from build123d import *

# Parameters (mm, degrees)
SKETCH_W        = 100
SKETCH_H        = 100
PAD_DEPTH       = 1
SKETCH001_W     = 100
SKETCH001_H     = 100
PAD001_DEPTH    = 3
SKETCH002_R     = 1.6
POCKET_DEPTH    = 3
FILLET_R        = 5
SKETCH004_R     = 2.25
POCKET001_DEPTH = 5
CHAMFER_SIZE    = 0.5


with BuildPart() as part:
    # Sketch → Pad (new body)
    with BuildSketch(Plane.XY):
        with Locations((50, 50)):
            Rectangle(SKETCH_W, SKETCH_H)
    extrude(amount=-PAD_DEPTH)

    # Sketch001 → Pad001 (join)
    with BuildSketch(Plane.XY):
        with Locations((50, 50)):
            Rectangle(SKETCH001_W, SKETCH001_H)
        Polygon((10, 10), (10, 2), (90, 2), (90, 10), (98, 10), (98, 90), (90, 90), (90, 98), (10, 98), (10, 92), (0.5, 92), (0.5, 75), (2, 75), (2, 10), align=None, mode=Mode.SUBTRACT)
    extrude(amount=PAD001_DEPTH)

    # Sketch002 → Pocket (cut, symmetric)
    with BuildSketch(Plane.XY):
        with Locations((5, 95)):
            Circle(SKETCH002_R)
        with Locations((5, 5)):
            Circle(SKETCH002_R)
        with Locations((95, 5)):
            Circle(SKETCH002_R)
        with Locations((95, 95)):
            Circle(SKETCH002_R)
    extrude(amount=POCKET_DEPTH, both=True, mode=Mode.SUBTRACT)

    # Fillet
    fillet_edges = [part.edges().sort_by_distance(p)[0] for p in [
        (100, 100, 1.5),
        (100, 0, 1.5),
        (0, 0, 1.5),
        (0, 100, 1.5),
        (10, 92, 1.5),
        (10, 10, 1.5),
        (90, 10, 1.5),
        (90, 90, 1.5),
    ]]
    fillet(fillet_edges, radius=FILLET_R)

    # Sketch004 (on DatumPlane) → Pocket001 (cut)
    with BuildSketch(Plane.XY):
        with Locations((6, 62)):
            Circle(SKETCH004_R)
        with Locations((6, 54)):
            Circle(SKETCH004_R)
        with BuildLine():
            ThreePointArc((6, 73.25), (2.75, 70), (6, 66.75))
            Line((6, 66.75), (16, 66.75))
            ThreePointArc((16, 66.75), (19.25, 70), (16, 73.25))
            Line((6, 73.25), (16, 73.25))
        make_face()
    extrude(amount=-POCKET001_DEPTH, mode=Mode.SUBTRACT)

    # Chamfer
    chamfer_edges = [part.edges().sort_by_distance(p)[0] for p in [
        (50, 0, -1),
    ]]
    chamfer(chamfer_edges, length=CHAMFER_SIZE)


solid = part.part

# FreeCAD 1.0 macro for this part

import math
import FreeCAD as App
import Part
import Sketcher
from FreeCAD import Vector


def edges_at(feature, points):
    """Names of the edges that pass closest to the given points."""
    edges = feature.Shape.Edges
    near = lambda p: min(range(len(edges)), key=lambda i: edges[i].distToShape(Part.Vertex(*p))[0])
    return sorted({f"Edge{near(p) + 1}" for p in points})


def add_polygon(sketch, points):
    """Adds a closed chain of lines whose ends are joined by coincident constraints."""
    first, n = sketch.GeometryCount, len(points)
    for a, b in zip(points, points[1:] + points[:1]):
        sketch.addGeometry(Part.LineSegment(App.Vector(*a, 0), App.Vector(*b, 0)), False)
    for i in range(n):
        sketch.addConstraint(Sketcher.Constraint("Coincident", first + i, 2, first + (i + 1) % n, 1))

doc = App.newDocument("Part")
body = doc.addObject("PartDesign::Body", "Body")

# Sketch on XY plane
sketch1 = body.newObject("Sketcher::SketchObject", "Sketch")
sketch1.AttachmentSupport = (doc.getObject("XY_Plane"), [""])
sketch1.MapMode = "FlatFace"
add_polygon(sketch1, [(0, 100), (0, 0), (100, 0), (100, 100)])  # lines 0-3
sketch1.addConstraint([
    Sketcher.Constraint("Vertical", 0),
    Sketcher.Constraint("Horizontal", 1),
    Sketcher.Constraint("Vertical", 2),
    Sketcher.Constraint("Horizontal", 3),
    Sketcher.Constraint("Coincident", 0, 2, -1, 1),
    Sketcher.Constraint("Equal", 3, 0),
    Sketcher.Constraint("DistanceX", 1, 1, 1, 2, 100.0),
])
pad1 = body.newObject("PartDesign::Pad", "Pad")
pad1.Profile = sketch1
pad1.Length = 1
pad1.Reversed = True

# Sketch on XY plane
sketch2 = body.newObject("Sketcher::SketchObject", "Sketch001")
sketch2.AttachmentSupport = (doc.getObject("XY_Plane"), [""])
sketch2.MapMode = "FlatFace"
add_polygon(sketch2, [(0, 100), (0, 0), (100, 0), (100, 100)])  # lines 0-3
add_polygon(sketch2, [(10, 2), (10, 10), (2, 10), (2, 75), (0.5, 75), (0.5, 92), (10, 92), (10, 98), (90, 98), (90, 90), (98, 90), (98, 10), (90, 10), (90, 2)])  # lines 4-17
sketch2.addConstraint([
    Sketcher.Constraint("Vertical", 0),
    Sketcher.Constraint("Horizontal", 1),
    Sketcher.Constraint("Vertical", 2),
    Sketcher.Constraint("Horizontal", 3),
    Sketcher.Constraint("Vertical", 4),
    Sketcher.Constraint("Horizontal", 5),
    Sketcher.Constraint("Vertical", 6),
    Sketcher.Constraint("Horizontal", 7),
    Sketcher.Constraint("Vertical", 8),
    Sketcher.Constraint("Horizontal", 9),
    Sketcher.Constraint("Vertical", 10),
    Sketcher.Constraint("Horizontal", 11),
    Sketcher.Constraint("Vertical", 12),
    Sketcher.Constraint("Horizontal", 13),
    Sketcher.Constraint("Vertical", 14),
    Sketcher.Constraint("Horizontal", 15),
    Sketcher.Constraint("Vertical", 16),
    Sketcher.Constraint("Horizontal", 17),
    Sketcher.Constraint("Coincident", 0, 2, -1, 1),
    Sketcher.Constraint("Horizontal", 5, 2, 14, 2),
    Sketcher.Constraint("Vertical", 4, 2, 9, 2),
    Sketcher.Constraint("Vertical", 12, 2, 15, 2),
    Sketcher.Constraint("Equal", 5, 13),
    Sketcher.Constraint("Equal", 3, 0),
    Sketcher.Constraint("Equal", 15, 4),
    Sketcher.Constraint("Equal", 4, 12),
    Sketcher.Constraint("Equal", 17, 14),
    Sketcher.Constraint("DistanceX", 1, 1, 1, 2, 100.0),
    Sketcher.Constraint("DistanceX", 5, 2, 5, 1, 8.0),
    Sketcher.Constraint("DistanceX", 11, 1, 11, 2, 80.0),
    Sketcher.Constraint("DistanceY", 6, 1, 6, 2, 65.0),
    Sketcher.Constraint("DistanceY", 8, 1, 8, 2, 17.0),
    Sketcher.Constraint("DistanceX", 7, 2, 7, 1, 1.5),
    Sketcher.Constraint("DistanceX", -1, 1, 4, 2, 10.0),
    Sketcher.Constraint("DistanceY", -1, 1, 4, 2, 10.0),
])
pad2 = body.newObject("PartDesign::Pad", "Pad001")
pad2.Profile = sketch2
pad2.Length = 3

# Sketch on XY plane
sketch3 = body.newObject("Sketcher::SketchObject", "Sketch002")
sketch3.AttachmentSupport = (doc.getObject("XY_Plane"), [""])
sketch3.MapMode = "FlatFace"
sketch3.addGeometry([
    Part.Circle(Vector(5, 95, 0), Vector(0, 0, 1), 1.6),
    Part.Circle(Vector(5, 5, 0), Vector(0, 0, 1), 1.6),
    Part.Circle(Vector(95, 5, 0), Vector(0, 0, 1), 1.6),
    Part.Circle(Vector(95, 95, 0), Vector(0, 0, 1), 1.6),
], False)
sketch3.addConstraint([
    Sketcher.Constraint("Equal", 0, 1),
    Sketcher.Constraint("Equal", 1, 2),
    Sketcher.Constraint("Equal", 2, 3),
    Sketcher.Constraint("Horizontal", 1, 3, 2, 3),
    Sketcher.Constraint("Horizontal", 0, 3, 3, 3),
    Sketcher.Constraint("Vertical", 0, 3, 1, 3),
    Sketcher.Constraint("Vertical", 2, 3, 3, 3),
    Sketcher.Constraint("Diameter", 0, 3.2),
    Sketcher.Constraint("DistanceX", -1, 1, 0, 3, 5.0),
    Sketcher.Constraint("DistanceY", -1, 1, 0, 3, 95.0),
    Sketcher.Constraint("DistanceY", -1, 1, 1, 3, 5.0),
    Sketcher.Constraint("DistanceX", -1, 1, 2, 3, 95.0),
])
pocket1 = body.newObject("PartDesign::Pocket", "Pocket")
pocket1.Profile = sketch3
pocket1.Length = 6
pocket1.Midplane = True
doc.recompute()

fillet = body.newObject("PartDesign::Fillet", "Fillet")
fillet.Base = (pocket1, edges_at(pocket1, [
    (100, 100, 1),
    (100, 0, 1),
    (0, 0, 1),
    (0, 100, 1),
    (10, 92, 1.5),
    (10, 10, 1.5),
    (90, 10, 1.5),
    (90, 90, 1.5),
]))
fillet.Radius = 5

# Sketch on XY plane
sketch4 = body.newObject("Sketcher::SketchObject", "Sketch003")
sketch4.AttachmentSupport = (doc.getObject("XY_Plane"), [""])
sketch4.MapMode = "FlatFace"
sketch4.addGeometry([
    Part.Circle(Vector(6, 62, 0), Vector(0, 0, 1), 2.25),  # 0
    Part.Circle(Vector(6, 54, 0), Vector(0, 0, 1), 2.25),  # 1
    Part.ArcOfCircle(Part.Circle(Vector(6, 70, 0), Vector(0, 0, 1), 3.25), math.radians(90), math.radians(270)),  # 2
    Part.LineSegment(Vector(6, 66.75, 0), Vector(16, 66.75, 0)),  # 3
    Part.ArcOfCircle(Part.Circle(Vector(16, 70, 0), Vector(0, 0, 1), 3.25), math.radians(-90), math.radians(90)),  # 4
    Part.LineSegment(Vector(16, 73.25, 0), Vector(6, 73.25, 0)),  # 5
], False)
sketch4.addConstraint([
    Sketcher.Constraint("Tangent", 2, 2, 3, 1),
    Sketcher.Constraint("Tangent", 3, 2, 4, 1),
    Sketcher.Constraint("Tangent", 4, 2, 5, 1),
    Sketcher.Constraint("Tangent", 5, 2, 2, 1),
    Sketcher.Constraint("Horizontal", 3),
    Sketcher.Constraint("Horizontal", 5),
    Sketcher.Constraint("Equal", 0, 1),
    Sketcher.Constraint("Vertical", 0, 3, 1, 3),
    Sketcher.Constraint("Vertical", 1, 3, 2, 3),
    Sketcher.Constraint("Diameter", 0, 4.5),
    Sketcher.Constraint("DistanceX", 3, 1, 3, 2, 10.0),
    Sketcher.Constraint("Radius", 2, 3.25),
    Sketcher.Constraint("DistanceX", -1, 1, 0, 3, 6.0),
    Sketcher.Constraint("DistanceY", -1, 1, 0, 3, 62.0),
    Sketcher.Constraint("DistanceY", -1, 1, 1, 3, 54.0),
    Sketcher.Constraint("DistanceY", -1, 1, 2, 3, 70.0),
])
pocket2 = body.newObject("PartDesign::Pocket", "Pocket001")
pocket2.Profile = sketch4
pocket2.Length = 5
doc.recompute()

chamfer = body.newObject("PartDesign::Chamfer", "Chamfer")
chamfer.Base = (pocket2, edges_at(pocket2, [(50, 0, -1)]))
chamfer.Size = 0.5

doc.recompute()
